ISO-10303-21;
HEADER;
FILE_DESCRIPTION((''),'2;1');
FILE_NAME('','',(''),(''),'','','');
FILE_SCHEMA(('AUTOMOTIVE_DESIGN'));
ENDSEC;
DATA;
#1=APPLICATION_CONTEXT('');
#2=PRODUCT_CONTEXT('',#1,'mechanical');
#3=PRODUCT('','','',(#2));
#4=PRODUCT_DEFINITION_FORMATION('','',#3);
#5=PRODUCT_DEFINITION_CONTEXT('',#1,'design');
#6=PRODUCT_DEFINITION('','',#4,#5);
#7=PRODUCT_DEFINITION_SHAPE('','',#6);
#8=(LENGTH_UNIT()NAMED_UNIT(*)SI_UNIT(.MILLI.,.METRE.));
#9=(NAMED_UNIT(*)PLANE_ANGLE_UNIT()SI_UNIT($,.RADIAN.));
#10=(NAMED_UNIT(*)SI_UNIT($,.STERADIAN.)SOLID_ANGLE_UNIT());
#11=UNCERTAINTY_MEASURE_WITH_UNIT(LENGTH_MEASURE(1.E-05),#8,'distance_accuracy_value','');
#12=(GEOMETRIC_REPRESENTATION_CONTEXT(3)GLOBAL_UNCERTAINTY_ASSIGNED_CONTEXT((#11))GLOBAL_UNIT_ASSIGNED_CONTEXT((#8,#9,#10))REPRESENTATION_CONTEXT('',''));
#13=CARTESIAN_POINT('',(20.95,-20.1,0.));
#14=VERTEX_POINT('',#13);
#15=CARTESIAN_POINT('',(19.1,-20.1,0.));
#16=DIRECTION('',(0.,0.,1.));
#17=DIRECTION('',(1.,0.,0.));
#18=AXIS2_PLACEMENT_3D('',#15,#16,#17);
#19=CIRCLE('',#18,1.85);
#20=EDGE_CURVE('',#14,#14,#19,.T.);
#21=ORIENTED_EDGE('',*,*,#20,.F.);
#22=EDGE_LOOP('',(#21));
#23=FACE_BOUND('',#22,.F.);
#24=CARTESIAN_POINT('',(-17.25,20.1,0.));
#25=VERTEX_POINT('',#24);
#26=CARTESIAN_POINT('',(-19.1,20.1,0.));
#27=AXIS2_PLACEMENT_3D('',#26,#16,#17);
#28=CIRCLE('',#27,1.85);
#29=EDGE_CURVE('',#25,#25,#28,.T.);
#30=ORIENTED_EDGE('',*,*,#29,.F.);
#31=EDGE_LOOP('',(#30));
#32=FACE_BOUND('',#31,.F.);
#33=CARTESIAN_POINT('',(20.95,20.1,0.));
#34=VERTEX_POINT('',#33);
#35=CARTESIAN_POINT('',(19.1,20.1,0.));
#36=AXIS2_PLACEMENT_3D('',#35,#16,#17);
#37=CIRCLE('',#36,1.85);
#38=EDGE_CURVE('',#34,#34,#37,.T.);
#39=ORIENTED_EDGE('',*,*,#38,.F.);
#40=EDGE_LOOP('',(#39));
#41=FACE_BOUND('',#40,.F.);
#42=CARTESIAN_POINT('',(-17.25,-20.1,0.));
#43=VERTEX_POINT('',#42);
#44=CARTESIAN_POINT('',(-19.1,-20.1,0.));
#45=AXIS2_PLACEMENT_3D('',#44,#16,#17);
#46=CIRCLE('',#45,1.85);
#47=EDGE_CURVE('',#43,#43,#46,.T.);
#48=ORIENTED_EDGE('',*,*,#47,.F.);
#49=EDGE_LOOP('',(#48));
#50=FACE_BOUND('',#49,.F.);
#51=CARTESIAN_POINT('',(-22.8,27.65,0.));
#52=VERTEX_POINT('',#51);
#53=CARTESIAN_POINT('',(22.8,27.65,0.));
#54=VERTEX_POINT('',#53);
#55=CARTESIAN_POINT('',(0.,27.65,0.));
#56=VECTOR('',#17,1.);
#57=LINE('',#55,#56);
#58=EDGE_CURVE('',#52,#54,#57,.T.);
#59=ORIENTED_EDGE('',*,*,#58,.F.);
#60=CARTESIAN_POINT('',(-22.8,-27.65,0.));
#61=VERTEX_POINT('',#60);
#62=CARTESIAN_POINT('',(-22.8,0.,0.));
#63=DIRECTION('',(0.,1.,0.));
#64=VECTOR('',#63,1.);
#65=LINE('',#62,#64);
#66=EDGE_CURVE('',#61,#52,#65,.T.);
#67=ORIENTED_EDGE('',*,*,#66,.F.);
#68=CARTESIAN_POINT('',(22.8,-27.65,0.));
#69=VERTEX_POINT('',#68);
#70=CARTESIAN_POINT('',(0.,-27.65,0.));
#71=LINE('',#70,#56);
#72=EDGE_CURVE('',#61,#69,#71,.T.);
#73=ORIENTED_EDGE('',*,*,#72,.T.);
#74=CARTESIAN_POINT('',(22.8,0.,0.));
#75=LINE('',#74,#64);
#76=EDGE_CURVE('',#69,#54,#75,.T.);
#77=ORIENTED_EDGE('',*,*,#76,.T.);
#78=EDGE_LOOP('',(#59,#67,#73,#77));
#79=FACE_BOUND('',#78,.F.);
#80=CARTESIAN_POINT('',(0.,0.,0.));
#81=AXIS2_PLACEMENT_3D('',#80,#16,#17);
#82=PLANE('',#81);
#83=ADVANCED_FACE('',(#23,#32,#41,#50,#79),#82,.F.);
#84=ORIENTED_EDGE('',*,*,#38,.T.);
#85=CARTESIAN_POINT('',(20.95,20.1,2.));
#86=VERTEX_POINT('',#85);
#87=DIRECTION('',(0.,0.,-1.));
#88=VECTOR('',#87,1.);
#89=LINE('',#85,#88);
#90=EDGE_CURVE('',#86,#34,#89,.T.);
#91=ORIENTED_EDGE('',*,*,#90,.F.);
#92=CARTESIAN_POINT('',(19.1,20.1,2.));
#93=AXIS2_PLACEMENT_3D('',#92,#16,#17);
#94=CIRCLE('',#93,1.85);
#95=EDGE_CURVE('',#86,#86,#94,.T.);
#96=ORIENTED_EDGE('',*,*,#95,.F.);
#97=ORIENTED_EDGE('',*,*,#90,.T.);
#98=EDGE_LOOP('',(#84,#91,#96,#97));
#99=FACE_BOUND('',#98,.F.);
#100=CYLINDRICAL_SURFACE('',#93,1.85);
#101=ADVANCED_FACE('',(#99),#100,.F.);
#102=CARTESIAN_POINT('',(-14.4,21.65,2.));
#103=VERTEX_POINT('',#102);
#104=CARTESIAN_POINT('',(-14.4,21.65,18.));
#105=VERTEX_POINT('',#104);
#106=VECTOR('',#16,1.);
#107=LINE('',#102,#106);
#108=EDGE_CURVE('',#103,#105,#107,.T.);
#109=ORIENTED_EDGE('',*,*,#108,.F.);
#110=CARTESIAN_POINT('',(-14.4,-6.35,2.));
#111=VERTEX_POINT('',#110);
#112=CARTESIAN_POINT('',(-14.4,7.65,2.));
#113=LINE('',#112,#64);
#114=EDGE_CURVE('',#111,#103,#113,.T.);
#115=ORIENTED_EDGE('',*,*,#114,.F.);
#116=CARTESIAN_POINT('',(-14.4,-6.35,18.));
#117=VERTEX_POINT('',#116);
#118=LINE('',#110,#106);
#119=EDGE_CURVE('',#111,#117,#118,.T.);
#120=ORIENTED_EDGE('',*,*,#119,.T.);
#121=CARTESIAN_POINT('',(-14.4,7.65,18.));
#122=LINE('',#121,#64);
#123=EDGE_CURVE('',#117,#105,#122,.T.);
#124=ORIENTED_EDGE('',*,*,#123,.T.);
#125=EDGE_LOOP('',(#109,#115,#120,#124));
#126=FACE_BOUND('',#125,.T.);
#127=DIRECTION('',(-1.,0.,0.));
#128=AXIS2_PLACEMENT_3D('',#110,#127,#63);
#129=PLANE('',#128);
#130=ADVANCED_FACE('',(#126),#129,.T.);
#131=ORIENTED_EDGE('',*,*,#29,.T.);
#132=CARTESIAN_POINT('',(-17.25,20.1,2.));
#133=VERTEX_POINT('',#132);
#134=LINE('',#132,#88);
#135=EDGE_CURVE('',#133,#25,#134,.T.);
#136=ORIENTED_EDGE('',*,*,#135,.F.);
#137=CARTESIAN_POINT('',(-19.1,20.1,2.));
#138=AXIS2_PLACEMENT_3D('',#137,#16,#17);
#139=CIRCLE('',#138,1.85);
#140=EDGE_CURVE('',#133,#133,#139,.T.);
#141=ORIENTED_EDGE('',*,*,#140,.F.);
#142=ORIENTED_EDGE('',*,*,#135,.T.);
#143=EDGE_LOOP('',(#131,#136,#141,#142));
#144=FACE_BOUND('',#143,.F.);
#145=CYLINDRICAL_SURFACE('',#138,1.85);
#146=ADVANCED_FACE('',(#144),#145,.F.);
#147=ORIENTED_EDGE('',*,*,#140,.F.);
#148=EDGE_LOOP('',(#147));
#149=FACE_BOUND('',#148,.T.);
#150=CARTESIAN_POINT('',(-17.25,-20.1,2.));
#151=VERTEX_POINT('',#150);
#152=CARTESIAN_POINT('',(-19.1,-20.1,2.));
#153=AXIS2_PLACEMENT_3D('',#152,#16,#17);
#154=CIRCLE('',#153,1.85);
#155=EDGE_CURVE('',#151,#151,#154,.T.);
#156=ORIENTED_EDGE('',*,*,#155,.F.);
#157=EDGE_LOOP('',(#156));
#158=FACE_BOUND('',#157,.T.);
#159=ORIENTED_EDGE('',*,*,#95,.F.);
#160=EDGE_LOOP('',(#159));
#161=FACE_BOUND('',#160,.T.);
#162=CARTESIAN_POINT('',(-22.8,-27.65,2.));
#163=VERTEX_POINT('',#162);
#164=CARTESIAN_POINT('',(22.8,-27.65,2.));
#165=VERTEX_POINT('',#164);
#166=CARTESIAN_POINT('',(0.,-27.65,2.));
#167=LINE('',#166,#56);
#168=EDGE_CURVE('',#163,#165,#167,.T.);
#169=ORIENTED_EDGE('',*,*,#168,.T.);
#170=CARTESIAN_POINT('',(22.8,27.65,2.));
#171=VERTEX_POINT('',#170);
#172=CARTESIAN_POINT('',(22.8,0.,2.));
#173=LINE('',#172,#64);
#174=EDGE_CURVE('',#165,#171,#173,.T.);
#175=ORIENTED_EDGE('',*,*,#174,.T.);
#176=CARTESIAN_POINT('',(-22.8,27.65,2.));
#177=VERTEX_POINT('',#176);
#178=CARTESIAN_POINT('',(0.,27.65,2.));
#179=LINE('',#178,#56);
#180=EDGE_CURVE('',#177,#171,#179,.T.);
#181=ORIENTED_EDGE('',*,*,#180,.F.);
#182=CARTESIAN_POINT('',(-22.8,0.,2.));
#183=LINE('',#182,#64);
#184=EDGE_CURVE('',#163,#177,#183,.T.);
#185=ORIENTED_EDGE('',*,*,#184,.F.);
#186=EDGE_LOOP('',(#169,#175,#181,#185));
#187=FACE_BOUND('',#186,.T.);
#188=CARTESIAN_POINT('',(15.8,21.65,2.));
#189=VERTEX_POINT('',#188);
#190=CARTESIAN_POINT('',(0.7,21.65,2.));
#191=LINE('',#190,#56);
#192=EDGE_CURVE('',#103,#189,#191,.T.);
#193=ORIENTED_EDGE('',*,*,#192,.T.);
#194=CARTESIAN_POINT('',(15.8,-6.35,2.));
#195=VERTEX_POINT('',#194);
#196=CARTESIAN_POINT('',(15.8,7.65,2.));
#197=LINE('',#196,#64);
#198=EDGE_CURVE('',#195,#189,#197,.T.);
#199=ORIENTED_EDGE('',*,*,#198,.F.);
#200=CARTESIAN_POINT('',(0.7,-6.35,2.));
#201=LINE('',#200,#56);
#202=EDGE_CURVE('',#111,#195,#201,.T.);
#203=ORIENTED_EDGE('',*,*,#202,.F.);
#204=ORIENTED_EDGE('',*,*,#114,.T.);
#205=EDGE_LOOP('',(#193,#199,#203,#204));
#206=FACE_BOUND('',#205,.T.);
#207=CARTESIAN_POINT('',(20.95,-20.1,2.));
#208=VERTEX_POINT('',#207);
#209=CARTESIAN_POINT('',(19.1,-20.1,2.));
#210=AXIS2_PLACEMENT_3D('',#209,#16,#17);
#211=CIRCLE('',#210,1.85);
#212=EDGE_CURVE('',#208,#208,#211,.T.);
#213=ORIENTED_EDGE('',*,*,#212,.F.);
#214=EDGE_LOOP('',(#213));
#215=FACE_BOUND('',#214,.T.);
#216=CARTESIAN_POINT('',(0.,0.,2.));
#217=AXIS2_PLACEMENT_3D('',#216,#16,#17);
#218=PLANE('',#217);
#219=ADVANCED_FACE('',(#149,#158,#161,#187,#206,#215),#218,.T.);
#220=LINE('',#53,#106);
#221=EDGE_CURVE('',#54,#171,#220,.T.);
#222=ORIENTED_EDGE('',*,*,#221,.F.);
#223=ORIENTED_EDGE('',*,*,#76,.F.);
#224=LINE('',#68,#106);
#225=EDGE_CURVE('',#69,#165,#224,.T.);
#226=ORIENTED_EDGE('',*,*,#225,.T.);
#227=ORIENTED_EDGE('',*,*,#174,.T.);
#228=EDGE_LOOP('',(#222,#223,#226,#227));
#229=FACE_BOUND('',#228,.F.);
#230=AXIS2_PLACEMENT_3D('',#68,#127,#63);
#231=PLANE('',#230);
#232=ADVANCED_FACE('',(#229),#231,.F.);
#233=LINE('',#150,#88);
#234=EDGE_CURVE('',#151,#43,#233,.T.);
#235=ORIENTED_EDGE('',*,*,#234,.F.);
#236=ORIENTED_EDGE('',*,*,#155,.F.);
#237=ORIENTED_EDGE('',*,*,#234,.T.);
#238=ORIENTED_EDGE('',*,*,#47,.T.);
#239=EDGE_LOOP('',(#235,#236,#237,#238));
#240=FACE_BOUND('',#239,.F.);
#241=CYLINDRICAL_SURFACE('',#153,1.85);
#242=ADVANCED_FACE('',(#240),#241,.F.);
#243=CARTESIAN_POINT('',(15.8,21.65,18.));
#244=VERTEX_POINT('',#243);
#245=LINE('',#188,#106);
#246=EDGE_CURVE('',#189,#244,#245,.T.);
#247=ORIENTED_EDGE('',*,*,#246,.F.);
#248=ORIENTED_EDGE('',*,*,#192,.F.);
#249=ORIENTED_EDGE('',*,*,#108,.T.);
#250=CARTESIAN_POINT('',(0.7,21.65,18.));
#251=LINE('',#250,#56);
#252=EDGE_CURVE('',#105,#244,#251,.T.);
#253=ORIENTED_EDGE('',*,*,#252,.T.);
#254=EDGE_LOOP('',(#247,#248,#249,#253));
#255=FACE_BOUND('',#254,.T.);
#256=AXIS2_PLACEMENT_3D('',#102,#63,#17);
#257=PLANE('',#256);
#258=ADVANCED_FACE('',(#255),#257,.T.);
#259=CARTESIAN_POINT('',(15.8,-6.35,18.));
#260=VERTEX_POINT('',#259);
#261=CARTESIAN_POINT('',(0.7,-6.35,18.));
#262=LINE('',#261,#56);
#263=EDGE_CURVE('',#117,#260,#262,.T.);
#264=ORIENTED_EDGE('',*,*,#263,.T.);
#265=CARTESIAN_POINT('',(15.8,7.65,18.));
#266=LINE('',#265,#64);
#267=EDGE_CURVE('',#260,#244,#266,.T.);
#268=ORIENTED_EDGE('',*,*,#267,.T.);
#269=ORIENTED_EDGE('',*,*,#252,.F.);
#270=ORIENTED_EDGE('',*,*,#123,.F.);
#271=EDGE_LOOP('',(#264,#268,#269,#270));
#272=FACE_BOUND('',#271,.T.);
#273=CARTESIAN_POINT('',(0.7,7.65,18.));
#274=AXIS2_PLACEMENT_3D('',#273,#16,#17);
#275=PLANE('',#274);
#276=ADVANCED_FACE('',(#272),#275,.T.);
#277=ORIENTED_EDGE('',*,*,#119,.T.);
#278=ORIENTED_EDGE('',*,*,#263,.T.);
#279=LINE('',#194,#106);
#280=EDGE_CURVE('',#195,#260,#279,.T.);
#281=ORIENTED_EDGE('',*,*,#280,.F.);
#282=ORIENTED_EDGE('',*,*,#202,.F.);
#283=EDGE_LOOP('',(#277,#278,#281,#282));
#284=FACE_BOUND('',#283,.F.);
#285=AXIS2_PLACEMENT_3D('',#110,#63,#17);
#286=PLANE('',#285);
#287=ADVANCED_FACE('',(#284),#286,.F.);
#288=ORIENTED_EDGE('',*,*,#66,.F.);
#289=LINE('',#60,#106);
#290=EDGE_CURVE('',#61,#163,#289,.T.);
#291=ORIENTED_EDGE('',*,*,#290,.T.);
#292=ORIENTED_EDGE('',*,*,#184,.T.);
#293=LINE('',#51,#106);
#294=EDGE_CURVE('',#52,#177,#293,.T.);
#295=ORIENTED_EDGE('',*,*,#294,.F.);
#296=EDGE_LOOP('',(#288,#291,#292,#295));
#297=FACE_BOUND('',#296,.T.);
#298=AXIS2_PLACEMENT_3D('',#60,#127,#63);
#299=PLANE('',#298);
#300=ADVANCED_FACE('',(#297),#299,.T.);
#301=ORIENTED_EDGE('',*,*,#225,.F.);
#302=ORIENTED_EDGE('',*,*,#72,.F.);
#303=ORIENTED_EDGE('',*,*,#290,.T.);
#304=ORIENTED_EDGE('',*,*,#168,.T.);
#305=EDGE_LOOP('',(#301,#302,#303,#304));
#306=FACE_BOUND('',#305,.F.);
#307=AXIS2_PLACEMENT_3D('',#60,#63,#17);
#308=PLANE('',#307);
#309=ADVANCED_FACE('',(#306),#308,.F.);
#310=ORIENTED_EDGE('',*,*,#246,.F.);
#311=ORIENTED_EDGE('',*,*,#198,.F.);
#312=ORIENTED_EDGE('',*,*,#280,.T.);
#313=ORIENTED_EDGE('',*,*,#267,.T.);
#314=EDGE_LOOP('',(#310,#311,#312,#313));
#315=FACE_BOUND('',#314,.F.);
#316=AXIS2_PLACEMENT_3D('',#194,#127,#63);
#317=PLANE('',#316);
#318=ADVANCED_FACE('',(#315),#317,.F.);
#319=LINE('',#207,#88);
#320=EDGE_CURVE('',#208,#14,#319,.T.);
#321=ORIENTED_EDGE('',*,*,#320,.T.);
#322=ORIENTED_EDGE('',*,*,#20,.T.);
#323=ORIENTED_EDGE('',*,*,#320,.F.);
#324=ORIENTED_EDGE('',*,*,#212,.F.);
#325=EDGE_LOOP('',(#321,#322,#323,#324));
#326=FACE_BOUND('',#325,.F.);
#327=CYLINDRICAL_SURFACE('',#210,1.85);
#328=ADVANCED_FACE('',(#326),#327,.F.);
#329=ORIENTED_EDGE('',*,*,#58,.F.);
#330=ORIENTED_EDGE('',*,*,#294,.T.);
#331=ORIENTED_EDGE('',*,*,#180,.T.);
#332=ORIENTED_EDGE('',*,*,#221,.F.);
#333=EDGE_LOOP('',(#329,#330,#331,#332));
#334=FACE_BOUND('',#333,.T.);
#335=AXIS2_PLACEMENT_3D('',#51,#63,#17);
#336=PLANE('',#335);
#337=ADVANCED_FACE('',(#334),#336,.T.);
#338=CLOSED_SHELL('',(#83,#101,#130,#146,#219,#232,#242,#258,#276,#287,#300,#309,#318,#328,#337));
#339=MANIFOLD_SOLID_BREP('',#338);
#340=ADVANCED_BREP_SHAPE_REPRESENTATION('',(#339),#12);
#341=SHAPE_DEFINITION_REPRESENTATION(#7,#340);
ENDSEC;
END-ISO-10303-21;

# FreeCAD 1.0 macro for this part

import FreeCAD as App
import Part
import Sketcher

V = App.Vector


def add_polygon(sketch, points):
    """Adds a closed chain of lines whose ends are joined by coincident constraints."""
    first, n = sketch.GeometryCount, len(points)
    for a, b in zip(points, points[1:] + points[:1]):
        sketch.addGeometry(Part.LineSegment(App.Vector(*a, 0), App.Vector(*b, 0)), False)
    for i in range(n):
        sketch.addConstraint(Sketcher.Constraint("Coincident", first + i, 2, first + (i + 1) % n, 1))

doc = App.newDocument("Part")
body = doc.addObject("PartDesign::Body", "Body")

sketch1 = doc.addObject("Sketcher::SketchObject", "Sketch")
body.addObject(sketch1)
sketch1.AttachmentSupport = (doc.XY_Plane, [""])
sketch1.MapMode = "FlatFace"
add_polygon(sketch1, [(-23, 28), (-23, -28), (23, -28), (23, 28)])
sketch1.addConstraint([
    Sketcher.Constraint("Vertical", 0),
    Sketcher.Constraint("Horizontal", 1),
    Sketcher.Constraint("Vertical", 2),
    Sketcher.Constraint("Horizontal", 3),
    Sketcher.Constraint("Symmetric", 0, 2, 2, 2, -1, 1),
    Sketcher.Constraint("DistanceX", 1, 1, 1, 2, 45.6),
    Sketcher.Constraint("DistanceY", 0, 2, 0, 1, 55.3),
])
pad1 = doc.addObject("PartDesign::Pad", "Pad")
body.addObject(pad1)
pad1.Profile = sketch1
pad1.Length = 2

sketch2 = doc.addObject("Sketcher::SketchObject", "Sketch001")
body.addObject(sketch2)
sketch2.AttachmentSupport = (doc.XY_Plane, [""])
sketch2.MapMode = "FlatFace"
sketch2.AttachmentOffset = App.Placement(V(0, 0, 2), App.Rotation())
sketch2.addGeometry([
    Part.Circle(V(-19.1, 20.1, 0), V(0, 0, 1), 1.9),
    Part.Circle(V(19.1, 20.1, 0), V(0, 0, 1), 1.9),
    Part.Circle(V(-19.1, -20.1, 0), V(0, 0, 1), 1.9),
    Part.Circle(V(19.1, -20.1, 0), V(0, 0, 1), 1.9),
], False)
sketch2.addConstraint([
    Sketcher.Constraint("Equal", 0, 1),
    Sketcher.Constraint("Equal", 1, 2),
    Sketcher.Constraint("Equal", 2, 3),
    Sketcher.Constraint("Symmetric", 1, 3, 2, 3, -1, 1),
    Sketcher.Constraint("Symmetric", 0, 3, 3, 3, -1, 1),
    Sketcher.Constraint("Symmetric", 0, 3, 1, 3, -2),
    Sketcher.Constraint("Diameter", 0, 3.7),
    Sketcher.Constraint("DistanceX", 0, 3, -1, 1, 19.1),
    Sketcher.Constraint("DistanceY", -1, 1, 0, 3, 20.1),
])
pocket1 = doc.addObject("PartDesign::Pocket", "Pocket")
body.addObject(pocket1)
pocket1.Profile = sketch2
pocket1.Length = 25

sketch3 = doc.addObject("Sketcher::SketchObject", "Sketch002")
body.addObject(sketch3)
sketch3.AttachmentSupport = (doc.XY_Plane, [""])
sketch3.MapMode = "FlatFace"
sketch3.AttachmentOffset = App.Placement(V(0, 0, 2), App.Rotation())
add_polygon(sketch3, [(-14, 22), (-14, -6), (16, -6), (16, 22)])
sketch3.addConstraint([
    Sketcher.Constraint("Vertical", 0),
    Sketcher.Constraint("Horizontal", 1),
    Sketcher.Constraint("Vertical", 2),
    Sketcher.Constraint("Horizontal", 3),
    Sketcher.Constraint("DistanceY", 0, 2, 0, 1, 28.0),
    Sketcher.Constraint("DistanceX", 1, 1, 1, 2, 30.2),
    Sketcher.Constraint("DistanceX", 0, 2, -1, 1, 14.4),
    Sketcher.Constraint("DistanceY", 0, 2, -1, 1, 6.35),
])
pad2 = doc.addObject("PartDesign::Pad", "Pad001")
body.addObject(pad2)
pad2.Profile = sketch3
pad2.Length = 16

doc.recompute()
